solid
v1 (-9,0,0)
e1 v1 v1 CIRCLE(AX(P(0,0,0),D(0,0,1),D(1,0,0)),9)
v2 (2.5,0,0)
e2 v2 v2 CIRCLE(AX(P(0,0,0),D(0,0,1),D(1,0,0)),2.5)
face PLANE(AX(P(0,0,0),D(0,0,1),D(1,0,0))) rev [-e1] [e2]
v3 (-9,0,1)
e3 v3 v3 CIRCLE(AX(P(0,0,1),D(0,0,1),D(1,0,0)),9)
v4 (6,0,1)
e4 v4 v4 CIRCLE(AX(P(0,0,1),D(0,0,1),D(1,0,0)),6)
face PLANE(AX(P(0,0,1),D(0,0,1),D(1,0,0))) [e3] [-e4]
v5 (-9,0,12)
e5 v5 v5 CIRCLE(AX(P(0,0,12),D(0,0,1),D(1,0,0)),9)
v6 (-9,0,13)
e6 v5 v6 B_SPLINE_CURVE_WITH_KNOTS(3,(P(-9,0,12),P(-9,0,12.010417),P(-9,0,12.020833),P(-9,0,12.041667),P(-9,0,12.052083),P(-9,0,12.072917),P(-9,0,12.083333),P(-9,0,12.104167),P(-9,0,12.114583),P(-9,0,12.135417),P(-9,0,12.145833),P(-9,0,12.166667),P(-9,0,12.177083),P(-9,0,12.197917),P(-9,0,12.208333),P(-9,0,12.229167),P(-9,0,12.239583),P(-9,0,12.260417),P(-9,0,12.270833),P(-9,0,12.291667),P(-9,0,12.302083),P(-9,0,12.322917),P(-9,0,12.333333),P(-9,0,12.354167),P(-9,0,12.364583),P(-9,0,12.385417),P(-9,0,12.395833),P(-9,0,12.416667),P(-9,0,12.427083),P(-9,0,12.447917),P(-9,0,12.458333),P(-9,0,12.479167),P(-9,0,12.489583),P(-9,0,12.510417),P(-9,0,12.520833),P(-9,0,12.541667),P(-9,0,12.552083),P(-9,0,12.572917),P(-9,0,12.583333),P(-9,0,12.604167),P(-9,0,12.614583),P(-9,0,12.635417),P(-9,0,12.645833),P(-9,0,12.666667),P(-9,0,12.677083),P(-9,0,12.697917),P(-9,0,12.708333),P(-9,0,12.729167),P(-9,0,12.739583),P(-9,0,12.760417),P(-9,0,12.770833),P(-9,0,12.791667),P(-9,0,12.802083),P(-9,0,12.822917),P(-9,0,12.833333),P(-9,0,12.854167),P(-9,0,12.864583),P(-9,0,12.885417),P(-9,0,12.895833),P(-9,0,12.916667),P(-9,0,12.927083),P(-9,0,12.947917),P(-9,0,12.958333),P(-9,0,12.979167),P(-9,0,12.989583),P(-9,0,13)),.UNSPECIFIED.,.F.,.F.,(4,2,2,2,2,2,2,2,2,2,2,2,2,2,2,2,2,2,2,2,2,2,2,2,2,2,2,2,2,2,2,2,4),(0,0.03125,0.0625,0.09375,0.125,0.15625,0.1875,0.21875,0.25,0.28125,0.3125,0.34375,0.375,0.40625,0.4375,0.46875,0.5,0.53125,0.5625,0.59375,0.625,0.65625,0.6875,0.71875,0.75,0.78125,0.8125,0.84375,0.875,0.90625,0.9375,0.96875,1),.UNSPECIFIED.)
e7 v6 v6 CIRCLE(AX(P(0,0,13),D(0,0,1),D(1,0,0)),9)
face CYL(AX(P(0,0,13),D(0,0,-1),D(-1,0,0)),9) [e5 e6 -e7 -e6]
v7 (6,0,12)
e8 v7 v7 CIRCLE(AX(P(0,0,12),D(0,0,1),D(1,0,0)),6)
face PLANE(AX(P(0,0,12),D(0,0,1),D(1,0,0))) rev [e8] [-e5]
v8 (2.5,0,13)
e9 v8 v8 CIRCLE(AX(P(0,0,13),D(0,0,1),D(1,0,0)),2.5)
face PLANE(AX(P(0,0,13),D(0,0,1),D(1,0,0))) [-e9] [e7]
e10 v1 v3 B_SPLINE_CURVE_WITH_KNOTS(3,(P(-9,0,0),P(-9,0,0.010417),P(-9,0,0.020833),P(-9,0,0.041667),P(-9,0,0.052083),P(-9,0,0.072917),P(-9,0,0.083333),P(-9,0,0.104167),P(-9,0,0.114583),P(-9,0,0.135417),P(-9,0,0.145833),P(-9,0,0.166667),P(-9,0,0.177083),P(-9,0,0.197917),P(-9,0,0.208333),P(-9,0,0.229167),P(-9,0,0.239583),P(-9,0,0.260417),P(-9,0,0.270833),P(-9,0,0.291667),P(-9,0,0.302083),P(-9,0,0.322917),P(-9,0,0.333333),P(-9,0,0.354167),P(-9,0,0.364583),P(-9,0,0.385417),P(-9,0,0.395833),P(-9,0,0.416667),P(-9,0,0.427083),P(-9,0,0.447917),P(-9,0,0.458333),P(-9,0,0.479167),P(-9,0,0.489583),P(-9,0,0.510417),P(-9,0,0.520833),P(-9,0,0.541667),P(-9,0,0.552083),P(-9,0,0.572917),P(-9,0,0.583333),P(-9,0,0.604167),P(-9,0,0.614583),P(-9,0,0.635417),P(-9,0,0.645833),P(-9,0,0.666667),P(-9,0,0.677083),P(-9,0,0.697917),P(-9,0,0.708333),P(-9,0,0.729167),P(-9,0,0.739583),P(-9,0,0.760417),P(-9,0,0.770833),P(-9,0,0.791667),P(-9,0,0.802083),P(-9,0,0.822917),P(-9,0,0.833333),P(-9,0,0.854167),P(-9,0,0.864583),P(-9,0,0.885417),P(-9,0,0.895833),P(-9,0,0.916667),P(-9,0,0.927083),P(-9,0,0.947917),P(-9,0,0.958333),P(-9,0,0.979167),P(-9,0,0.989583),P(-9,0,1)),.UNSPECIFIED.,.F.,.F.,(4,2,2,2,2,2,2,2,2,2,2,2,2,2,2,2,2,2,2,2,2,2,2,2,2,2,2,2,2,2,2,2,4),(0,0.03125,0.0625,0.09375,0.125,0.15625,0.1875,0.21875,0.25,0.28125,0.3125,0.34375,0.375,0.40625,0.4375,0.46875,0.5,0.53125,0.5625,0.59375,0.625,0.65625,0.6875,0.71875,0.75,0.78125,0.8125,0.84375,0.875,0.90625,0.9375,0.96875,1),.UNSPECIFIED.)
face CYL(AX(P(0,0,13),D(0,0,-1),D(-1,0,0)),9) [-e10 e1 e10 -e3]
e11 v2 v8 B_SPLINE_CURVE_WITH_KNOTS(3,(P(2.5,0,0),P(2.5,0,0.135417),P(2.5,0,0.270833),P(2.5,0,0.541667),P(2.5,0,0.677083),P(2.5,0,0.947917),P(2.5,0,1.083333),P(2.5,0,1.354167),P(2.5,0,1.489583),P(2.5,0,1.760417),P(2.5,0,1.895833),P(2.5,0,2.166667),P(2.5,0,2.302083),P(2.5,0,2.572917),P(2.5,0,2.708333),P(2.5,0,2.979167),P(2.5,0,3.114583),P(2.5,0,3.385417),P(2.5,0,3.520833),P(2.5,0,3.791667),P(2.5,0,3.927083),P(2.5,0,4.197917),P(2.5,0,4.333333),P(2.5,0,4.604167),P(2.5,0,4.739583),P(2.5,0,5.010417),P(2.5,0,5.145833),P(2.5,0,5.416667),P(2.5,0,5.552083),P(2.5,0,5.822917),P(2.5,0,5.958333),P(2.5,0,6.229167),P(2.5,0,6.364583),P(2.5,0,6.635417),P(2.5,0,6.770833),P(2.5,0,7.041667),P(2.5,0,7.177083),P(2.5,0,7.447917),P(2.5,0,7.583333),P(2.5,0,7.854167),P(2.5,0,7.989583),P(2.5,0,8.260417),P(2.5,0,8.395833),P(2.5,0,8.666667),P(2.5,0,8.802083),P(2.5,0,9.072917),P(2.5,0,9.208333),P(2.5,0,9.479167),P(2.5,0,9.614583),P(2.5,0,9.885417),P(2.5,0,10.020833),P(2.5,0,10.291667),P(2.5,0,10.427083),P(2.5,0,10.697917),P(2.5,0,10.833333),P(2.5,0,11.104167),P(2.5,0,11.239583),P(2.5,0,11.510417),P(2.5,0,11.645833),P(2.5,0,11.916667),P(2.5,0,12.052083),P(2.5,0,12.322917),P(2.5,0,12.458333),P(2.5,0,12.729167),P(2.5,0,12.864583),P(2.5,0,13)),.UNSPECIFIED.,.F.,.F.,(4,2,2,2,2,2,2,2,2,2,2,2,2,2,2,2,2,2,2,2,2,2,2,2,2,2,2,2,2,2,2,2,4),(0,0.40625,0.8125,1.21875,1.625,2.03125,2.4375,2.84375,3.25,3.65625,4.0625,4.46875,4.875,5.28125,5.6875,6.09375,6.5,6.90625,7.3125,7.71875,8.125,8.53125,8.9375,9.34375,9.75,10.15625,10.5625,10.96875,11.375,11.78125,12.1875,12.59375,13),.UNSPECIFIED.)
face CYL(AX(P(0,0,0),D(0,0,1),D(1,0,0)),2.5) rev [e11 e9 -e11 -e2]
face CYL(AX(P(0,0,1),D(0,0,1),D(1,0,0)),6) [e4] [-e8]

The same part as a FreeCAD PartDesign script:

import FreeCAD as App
import Part
import Sketcher
from FreeCAD import Vector

doc = App.newDocument("Part")
params = doc.addObject("Spreadsheet::Sheet", "Params")
for row, (alias, value) in enumerate([
    ("sketch1_diameter", "18 mm"),
    ("pad1_length", "13 mm"),
    ("sketch2_diameter", "18 mm"),
    ("sketch2_diameter2", "12 mm"),
    ("pocket1_length", "11 mm"),
    ("sketch3_diameter", "5 mm"),
], start=1):
    params.set(f"A{row}", alias)
    params.set(f"B{row}", "=" + value)
    params.setAlias(f"B{row}", alias)

body = doc.addObject("PartDesign::Body", "Body")

# Sketch on XY plane
sketch1 = doc.addObject("Sketcher::SketchObject", "Sketch")
body.addObject(sketch1)
sketch1.AttachmentSupport = (doc.XY_Plane, [""])
sketch1.MapMode = "FlatFace"
sketch1.addGeometry(Part.Circle(Vector(0, 0, 0), Vector(0, 0, 1), 9), False)
sketch1.addConstraint(Sketcher.Constraint("Coincident", 0, 3, -1, 1))
sketch1.addConstraint(Sketcher.Constraint("Diameter", 0, 18.0))
sketch1.setExpression("Constraints[1]", "Params.sketch1_diameter")
pad1 = doc.addObject("PartDesign::Pad", "Pad")
body.addObject(pad1)
pad1.Profile = sketch1
pad1.setExpression("Length", "Params.pad1_length")

# Sketch on XY plane
sketch2 = doc.addObject("Sketcher::SketchObject", "Sketch001")
body.addObject(sketch2)
sketch2.AttachmentSupport = (doc.XY_Plane, [""])
sketch2.MapMode = "FlatFace"
sketch2.AttachmentOffset = App.Placement(Vector(0, 0, 1), App.Rotation())
sketch2.addGeometry(Part.Circle(Vector(0, 0, 0), Vector(0, 0, 1), 9), False)
sketch2.addGeometry(Part.Circle(Vector(0, 0, 0), Vector(0, 0, 1), 6), False)
sketch2.addConstraint(Sketcher.Constraint("Coincident", 0, 3, -1, 1))
sketch2.addConstraint(Sketcher.Constraint("Coincident", 1, 3, -1, 1))
sketch2.addConstraint(Sketcher.Constraint("Diameter", 0, 18.0))
sketch2.addConstraint(Sketcher.Constraint("Diameter", 1, 12.0))
sketch2.setExpression("Constraints[2]", "Params.sketch2_diameter")
sketch2.setExpression("Constraints[3]", "Params.sketch2_diameter2")
pocket1 = doc.addObject("PartDesign::Pocket", "Pocket")
body.addObject(pocket1)
pocket1.Profile = sketch2
pocket1.setExpression("Length", "Params.pocket1_length")
pocket1.Reversed = True

# Sketch on XY plane
sketch3 = doc.addObject("Sketcher::SketchObject", "Sketch002")
body.addObject(sketch3)
sketch3.AttachmentSupport = (doc.XY_Plane, [""])
sketch3.MapMode = "FlatFace"
sketch3.AttachmentOffset = App.Placement(Vector(0, 0, 13), App.Rotation())
sketch3.addGeometry(Part.Circle(Vector(0, 0, 0), Vector(0, 0, 1), 2.5), False)
sketch3.addConstraint(Sketcher.Constraint("Coincident", 0, 3, -1, 1))
sketch3.addConstraint(Sketcher.Constraint("Diameter", 0, 5.0))
sketch3.setExpression("Constraints[1]", "Params.sketch3_diameter")
pocket2 = doc.addObject("PartDesign::Pocket", "Pocket001")
body.addObject(pocket2)
pocket2.Profile = sketch3
pocket2.Type = "ThroughAll"

doc.recompute()
